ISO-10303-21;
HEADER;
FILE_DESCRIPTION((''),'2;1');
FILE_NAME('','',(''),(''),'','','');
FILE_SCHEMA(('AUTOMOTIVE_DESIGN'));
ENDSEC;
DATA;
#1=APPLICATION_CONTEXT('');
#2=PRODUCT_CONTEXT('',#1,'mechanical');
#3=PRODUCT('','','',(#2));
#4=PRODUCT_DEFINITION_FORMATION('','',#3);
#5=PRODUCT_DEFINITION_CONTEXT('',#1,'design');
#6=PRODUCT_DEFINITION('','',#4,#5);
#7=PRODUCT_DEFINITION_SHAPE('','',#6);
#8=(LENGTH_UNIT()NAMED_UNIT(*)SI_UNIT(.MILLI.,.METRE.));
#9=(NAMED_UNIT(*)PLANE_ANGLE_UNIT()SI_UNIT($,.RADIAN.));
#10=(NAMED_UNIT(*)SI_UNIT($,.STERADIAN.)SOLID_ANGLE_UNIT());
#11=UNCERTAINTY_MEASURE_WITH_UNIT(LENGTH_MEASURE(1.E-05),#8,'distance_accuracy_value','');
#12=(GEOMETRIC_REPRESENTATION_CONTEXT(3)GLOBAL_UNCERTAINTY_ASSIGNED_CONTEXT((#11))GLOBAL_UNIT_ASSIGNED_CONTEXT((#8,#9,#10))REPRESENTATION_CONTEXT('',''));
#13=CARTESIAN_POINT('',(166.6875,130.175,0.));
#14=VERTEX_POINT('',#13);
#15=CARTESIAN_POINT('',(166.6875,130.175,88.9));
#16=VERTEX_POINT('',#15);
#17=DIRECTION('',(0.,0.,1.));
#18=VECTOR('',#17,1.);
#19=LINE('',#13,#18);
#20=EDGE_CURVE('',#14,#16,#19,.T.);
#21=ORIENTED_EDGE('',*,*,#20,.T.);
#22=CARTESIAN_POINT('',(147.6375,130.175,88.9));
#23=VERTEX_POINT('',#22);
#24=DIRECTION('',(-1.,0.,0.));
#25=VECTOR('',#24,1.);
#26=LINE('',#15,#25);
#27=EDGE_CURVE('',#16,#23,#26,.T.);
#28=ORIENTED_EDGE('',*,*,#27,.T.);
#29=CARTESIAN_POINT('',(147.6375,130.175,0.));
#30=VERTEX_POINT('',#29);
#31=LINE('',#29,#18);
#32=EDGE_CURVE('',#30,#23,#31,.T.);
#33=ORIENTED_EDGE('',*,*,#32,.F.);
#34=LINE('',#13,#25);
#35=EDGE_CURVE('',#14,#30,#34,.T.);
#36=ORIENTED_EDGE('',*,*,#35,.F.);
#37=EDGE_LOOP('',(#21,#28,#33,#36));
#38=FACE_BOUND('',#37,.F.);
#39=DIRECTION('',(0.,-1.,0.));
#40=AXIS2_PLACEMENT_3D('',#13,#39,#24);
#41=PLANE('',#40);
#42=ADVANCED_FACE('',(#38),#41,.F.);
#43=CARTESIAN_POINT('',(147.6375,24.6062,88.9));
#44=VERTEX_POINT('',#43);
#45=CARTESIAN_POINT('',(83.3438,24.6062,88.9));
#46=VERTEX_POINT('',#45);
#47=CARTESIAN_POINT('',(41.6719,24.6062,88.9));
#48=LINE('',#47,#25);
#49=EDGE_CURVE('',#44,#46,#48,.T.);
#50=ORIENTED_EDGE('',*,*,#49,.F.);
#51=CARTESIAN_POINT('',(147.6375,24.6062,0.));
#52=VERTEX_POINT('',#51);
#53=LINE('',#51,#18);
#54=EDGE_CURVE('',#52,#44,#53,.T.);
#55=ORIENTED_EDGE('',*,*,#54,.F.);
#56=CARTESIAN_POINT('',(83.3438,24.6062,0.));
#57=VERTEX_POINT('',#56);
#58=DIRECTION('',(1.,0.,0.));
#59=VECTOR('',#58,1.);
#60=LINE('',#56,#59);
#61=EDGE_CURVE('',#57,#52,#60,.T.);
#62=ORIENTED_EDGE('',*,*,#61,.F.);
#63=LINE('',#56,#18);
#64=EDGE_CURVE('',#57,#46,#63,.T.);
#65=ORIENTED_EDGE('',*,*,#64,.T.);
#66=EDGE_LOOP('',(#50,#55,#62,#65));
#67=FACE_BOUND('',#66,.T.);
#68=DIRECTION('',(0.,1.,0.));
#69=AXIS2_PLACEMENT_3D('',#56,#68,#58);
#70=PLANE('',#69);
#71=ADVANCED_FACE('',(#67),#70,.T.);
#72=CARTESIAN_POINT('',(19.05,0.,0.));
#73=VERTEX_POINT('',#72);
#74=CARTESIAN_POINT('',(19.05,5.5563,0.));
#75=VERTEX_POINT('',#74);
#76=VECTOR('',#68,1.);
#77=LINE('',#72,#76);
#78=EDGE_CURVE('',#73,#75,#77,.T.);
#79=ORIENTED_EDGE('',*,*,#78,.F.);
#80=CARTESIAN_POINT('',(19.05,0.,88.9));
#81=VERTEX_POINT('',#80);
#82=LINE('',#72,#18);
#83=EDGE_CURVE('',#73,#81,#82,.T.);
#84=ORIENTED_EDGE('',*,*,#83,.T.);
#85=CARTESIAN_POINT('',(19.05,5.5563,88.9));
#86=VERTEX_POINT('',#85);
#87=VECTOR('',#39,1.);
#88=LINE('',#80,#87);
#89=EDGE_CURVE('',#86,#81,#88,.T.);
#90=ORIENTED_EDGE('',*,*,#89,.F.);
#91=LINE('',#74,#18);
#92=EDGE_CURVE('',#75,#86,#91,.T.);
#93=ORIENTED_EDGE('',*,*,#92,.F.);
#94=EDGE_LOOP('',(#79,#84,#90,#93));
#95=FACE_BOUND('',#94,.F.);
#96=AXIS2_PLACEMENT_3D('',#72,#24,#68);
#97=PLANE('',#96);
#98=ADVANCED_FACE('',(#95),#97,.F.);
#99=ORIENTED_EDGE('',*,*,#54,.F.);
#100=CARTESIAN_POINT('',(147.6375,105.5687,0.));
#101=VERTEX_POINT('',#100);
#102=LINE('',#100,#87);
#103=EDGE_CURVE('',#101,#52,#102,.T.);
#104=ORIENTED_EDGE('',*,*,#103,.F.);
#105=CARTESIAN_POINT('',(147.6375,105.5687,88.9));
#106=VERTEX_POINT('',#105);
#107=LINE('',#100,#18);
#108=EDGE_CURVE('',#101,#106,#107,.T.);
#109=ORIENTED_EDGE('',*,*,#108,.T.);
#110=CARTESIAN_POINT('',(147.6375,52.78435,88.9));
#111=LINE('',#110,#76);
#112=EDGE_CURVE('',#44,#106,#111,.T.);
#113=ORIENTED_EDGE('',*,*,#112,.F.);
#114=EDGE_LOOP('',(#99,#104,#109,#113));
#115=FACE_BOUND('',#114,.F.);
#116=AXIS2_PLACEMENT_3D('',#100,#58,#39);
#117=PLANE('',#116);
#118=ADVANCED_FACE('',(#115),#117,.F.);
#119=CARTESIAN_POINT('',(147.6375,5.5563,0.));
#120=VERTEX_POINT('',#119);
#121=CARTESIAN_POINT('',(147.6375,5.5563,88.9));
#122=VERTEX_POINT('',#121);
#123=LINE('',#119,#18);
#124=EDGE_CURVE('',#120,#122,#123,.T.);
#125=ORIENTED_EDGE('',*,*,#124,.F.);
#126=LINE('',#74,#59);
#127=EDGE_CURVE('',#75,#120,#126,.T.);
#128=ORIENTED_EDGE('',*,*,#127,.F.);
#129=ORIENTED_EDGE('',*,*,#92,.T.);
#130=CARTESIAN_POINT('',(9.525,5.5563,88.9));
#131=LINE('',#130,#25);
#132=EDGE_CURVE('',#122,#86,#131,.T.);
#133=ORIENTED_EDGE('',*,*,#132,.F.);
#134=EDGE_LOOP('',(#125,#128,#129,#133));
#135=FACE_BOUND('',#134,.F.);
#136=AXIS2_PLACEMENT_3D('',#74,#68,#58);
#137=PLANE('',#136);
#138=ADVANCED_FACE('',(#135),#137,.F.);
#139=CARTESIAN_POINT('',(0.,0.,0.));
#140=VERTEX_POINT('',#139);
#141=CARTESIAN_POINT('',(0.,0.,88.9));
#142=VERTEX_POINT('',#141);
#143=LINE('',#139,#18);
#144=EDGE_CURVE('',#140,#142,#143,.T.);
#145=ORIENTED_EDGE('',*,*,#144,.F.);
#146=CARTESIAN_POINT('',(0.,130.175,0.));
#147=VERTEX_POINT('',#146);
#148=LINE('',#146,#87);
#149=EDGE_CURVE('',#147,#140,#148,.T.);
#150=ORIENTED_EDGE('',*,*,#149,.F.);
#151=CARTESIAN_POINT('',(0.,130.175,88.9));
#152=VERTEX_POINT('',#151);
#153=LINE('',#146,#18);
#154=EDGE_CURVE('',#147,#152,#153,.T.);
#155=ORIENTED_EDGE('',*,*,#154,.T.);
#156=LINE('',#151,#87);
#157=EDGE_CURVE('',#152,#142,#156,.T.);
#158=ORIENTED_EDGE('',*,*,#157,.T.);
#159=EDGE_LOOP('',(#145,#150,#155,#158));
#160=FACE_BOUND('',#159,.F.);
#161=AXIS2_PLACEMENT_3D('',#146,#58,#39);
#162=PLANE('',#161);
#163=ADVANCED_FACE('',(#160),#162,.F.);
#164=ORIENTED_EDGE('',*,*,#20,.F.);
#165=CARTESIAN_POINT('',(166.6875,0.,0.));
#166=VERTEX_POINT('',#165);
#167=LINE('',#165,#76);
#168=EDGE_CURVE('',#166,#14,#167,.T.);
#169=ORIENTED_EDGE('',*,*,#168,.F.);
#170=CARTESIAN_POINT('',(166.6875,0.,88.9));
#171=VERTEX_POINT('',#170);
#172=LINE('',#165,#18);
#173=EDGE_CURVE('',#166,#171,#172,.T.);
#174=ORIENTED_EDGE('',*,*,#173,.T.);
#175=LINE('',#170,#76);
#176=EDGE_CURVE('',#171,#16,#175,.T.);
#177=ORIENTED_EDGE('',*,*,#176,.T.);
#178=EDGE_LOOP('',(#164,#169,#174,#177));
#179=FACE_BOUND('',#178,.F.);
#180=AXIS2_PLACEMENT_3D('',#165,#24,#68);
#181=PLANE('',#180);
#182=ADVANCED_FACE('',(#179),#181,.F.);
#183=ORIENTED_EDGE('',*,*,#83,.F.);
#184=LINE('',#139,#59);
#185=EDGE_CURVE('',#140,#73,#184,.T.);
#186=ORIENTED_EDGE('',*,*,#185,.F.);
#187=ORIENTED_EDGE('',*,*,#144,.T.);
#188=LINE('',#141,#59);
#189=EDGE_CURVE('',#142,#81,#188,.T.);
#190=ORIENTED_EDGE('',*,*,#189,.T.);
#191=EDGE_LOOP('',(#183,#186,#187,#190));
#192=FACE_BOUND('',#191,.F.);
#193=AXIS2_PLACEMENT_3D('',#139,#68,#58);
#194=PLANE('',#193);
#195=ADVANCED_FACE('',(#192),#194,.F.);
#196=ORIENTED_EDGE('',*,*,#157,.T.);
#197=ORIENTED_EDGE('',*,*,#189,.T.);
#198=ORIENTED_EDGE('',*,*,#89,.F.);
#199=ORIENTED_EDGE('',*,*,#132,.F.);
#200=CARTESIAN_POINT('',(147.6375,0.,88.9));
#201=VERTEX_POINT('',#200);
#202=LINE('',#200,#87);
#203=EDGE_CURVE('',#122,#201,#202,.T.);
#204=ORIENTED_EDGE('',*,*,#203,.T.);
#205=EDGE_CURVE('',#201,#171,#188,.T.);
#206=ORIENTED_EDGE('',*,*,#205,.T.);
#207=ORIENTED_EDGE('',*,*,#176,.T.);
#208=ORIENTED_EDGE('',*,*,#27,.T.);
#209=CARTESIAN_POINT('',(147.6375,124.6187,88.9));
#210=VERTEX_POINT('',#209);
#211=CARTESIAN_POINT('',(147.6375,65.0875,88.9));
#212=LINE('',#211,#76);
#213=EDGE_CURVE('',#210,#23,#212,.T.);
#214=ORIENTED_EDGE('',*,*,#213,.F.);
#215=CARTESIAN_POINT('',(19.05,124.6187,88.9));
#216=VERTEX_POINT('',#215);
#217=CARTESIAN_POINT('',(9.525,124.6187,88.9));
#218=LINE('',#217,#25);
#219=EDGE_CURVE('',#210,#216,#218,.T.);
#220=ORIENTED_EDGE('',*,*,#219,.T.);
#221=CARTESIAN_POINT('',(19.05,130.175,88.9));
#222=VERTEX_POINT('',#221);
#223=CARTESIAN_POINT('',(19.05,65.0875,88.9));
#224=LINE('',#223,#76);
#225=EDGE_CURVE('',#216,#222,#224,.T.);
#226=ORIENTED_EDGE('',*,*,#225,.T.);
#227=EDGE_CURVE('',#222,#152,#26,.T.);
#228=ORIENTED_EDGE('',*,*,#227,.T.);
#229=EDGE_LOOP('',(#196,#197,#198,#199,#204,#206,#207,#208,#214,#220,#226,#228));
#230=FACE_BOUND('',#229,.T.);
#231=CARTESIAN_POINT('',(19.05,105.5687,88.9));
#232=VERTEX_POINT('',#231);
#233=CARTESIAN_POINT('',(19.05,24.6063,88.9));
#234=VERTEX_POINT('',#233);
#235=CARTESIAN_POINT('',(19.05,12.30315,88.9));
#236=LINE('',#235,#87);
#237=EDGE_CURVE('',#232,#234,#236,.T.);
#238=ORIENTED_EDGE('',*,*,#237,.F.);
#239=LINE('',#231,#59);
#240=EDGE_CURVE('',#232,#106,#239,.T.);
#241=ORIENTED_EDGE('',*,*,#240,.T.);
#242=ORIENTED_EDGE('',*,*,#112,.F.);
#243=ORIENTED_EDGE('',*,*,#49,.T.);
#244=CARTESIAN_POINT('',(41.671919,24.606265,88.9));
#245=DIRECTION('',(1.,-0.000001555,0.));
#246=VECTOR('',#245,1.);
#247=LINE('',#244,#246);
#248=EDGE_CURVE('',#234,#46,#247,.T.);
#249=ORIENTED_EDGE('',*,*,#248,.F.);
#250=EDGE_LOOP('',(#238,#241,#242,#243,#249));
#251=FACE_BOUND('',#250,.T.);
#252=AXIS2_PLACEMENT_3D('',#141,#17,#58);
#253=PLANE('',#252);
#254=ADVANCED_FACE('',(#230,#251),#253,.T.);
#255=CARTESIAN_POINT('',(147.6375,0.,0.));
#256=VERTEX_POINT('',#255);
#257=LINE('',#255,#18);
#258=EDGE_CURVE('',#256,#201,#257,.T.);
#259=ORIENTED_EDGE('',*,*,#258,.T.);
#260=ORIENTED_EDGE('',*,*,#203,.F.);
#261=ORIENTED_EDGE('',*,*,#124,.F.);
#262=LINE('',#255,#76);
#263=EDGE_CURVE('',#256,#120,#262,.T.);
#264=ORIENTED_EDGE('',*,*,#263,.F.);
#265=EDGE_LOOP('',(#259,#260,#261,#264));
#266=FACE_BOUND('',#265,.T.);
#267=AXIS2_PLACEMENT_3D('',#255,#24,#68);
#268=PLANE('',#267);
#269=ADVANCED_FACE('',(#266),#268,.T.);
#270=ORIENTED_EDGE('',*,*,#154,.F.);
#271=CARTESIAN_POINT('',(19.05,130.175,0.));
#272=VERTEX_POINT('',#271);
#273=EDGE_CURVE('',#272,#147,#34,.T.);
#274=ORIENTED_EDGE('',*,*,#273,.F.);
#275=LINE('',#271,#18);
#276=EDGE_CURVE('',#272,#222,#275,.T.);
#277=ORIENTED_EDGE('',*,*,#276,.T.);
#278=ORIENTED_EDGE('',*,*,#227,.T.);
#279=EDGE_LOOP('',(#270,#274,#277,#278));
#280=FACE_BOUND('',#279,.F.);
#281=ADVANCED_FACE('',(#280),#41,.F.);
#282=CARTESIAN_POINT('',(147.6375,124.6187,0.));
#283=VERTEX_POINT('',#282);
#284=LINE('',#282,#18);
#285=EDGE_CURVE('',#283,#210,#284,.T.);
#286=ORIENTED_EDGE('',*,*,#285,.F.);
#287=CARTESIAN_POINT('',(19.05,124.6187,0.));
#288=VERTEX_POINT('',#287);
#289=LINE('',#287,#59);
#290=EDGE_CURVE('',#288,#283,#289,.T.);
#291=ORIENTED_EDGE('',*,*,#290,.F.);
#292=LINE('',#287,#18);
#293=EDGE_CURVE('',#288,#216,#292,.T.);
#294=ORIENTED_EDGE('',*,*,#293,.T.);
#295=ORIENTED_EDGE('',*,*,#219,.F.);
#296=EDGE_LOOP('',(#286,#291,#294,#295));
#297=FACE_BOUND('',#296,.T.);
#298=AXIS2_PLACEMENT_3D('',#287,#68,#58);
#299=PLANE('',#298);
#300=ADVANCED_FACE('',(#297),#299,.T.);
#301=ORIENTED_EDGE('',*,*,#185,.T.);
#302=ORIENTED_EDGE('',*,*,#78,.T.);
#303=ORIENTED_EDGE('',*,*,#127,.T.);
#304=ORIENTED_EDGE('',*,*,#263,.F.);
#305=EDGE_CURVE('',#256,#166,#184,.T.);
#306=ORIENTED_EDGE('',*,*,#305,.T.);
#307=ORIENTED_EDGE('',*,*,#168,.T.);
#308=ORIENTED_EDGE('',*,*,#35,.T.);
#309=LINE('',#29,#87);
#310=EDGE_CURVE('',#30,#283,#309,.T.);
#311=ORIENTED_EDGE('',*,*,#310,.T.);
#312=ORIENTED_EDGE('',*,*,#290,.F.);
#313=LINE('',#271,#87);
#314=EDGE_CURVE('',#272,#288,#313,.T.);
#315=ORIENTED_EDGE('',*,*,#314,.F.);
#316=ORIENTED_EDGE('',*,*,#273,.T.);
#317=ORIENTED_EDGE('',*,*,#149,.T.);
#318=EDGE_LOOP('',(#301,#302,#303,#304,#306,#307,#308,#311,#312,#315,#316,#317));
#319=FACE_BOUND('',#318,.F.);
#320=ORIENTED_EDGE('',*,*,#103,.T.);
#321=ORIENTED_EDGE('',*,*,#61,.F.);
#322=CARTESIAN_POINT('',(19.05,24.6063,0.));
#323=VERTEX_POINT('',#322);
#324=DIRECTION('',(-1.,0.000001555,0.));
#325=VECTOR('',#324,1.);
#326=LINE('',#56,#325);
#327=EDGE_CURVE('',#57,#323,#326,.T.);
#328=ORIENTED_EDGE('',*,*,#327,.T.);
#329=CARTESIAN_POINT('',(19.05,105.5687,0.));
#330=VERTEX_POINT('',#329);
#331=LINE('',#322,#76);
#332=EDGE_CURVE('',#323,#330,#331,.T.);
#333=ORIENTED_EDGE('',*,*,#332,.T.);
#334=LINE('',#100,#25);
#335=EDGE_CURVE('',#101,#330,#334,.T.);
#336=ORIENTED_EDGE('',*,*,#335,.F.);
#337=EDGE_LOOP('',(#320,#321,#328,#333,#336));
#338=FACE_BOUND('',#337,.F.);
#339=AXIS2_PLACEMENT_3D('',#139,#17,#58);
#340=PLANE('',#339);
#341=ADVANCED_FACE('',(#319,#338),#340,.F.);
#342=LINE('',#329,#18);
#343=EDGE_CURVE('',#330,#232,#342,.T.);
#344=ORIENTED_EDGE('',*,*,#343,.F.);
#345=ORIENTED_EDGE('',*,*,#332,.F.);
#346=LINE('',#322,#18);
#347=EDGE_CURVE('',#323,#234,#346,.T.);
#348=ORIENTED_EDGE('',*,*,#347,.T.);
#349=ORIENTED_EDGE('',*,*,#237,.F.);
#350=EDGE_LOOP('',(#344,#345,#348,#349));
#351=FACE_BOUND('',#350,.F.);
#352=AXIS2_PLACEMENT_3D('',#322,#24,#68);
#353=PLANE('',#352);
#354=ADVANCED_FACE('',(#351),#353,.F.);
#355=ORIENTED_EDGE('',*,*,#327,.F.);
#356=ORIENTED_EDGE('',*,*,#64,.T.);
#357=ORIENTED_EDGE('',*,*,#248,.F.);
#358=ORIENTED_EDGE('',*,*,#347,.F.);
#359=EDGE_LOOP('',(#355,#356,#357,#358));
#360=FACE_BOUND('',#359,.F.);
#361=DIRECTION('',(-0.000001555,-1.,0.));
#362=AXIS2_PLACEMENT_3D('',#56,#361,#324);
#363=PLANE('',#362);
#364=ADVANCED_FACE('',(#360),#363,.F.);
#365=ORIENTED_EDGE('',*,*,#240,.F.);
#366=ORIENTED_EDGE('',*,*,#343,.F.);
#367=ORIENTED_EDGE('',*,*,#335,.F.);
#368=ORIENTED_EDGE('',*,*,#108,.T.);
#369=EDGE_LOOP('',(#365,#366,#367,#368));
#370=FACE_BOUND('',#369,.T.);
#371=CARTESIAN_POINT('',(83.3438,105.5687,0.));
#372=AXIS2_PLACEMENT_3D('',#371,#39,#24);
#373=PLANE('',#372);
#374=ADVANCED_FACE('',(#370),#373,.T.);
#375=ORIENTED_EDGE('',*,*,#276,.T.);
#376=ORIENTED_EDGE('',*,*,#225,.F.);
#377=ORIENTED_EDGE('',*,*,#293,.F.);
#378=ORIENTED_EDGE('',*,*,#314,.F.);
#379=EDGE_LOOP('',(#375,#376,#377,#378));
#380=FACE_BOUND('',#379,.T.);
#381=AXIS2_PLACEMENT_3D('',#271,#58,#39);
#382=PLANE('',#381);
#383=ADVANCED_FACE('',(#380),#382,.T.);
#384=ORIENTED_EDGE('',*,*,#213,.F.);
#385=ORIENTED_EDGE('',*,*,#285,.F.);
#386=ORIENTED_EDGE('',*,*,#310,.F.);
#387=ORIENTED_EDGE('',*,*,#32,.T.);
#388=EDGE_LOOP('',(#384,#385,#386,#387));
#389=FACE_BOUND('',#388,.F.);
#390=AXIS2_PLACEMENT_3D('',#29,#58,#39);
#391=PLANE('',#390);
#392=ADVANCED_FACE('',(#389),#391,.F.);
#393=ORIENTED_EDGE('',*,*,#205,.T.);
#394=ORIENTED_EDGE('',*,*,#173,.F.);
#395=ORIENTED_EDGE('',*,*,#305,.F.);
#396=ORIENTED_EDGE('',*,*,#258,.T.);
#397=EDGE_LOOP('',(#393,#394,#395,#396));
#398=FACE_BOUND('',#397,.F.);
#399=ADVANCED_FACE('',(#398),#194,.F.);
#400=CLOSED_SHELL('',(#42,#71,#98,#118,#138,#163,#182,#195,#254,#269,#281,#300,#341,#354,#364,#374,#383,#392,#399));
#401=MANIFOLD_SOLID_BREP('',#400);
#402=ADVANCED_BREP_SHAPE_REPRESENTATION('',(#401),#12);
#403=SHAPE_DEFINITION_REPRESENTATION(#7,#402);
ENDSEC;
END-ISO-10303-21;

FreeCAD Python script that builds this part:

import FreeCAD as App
import Part
import Sketcher
Q = App.Units.Quantity

doc = App.newDocument("Part")
body = doc.addObject("PartDesign::Body", "Body")

# Sketch on XY plane
sketch1 = body.newObject("Sketcher::SketchObject", "Sketch")
sketch1.AttachmentSupport = (doc.getObject("XY_Plane"), [""])
sketch1.MapMode = "FlatFace"
sketch1.addGeometry([
    Part.LineSegment(App.Vector(0, 130, 0), App.Vector(0, 0, 0)),
    Part.LineSegment(App.Vector(0, 0, 0), App.Vector(167, 0, 0)),
    Part.LineSegment(App.Vector(167, 0, 0), App.Vector(167, 130, 0)),
    Part.LineSegment(App.Vector(167, 130, 0), App.Vector(0, 130, 0)),
], False)
sketch1.addConstraint([
    Sketcher.Constraint("Coincident", 0, 2, 1, 1),
    Sketcher.Constraint("Coincident", 1, 2, 2, 1),
    Sketcher.Constraint("Coincident", 2, 2, 3, 1),
    Sketcher.Constraint("Coincident", 3, 2, 0, 1),
    Sketcher.Constraint("Vertical", 0),
    Sketcher.Constraint("Horizontal", 1),
    Sketcher.Constraint("Vertical", 2),
    Sketcher.Constraint("Horizontal", 3),
    Sketcher.Constraint("Coincident", 0, 2, -1, 1),
    Sketcher.Constraint("DistanceX", 1, 1, 1, 2, Q("6.5625 in")),
    Sketcher.Constraint("DistanceY", 0, 2, 0, 1, Q("5.125 in")),
])
pad1 = body.newObject("PartDesign::Pad", "Pad")
pad1.Profile = sketch1
pad1.Length = Q("3.5 in")

# Sketch on XY plane
sketch2 = body.newObject("Sketcher::SketchObject", "Sketch001")
sketch2.AttachmentSupport = (doc.getObject("XY_Plane"), [""])
sketch2.MapMode = "FlatFace"
sketch2.addGeometry([
    Part.LineSegment(App.Vector(148, 0, 0), App.Vector(19, 0, 0)),  # 0
    Part.LineSegment(App.Vector(19, 0, 0), App.Vector(19, 6, 0)),  # 1
    Part.LineSegment(App.Vector(19, 6, 0), App.Vector(148, 6, 0)),  # 2
    Part.LineSegment(App.Vector(148, 6, 0), App.Vector(148, 0, 0)),  # 3
    Part.LineSegment(App.Vector(19, 130, 0), App.Vector(148, 130, 0)),  # 4
    Part.LineSegment(App.Vector(148, 130, 0), App.Vector(148, 125, 0)),  # 5
    Part.LineSegment(App.Vector(148, 125, 0), App.Vector(19, 125, 0)),  # 6
    Part.LineSegment(App.Vector(19, 125, 0), App.Vector(19, 130, 0)),  # 7
], False)
sketch2.addConstraint([
    Sketcher.Constraint("Coincident", 0, 2, 1, 1),
    Sketcher.Constraint("Coincident", 1, 2, 2, 1),
    Sketcher.Constraint("Coincident", 2, 2, 3, 1),
    Sketcher.Constraint("Coincident", 3, 2, 0, 1),
    Sketcher.Constraint("Coincident", 4, 2, 5, 1),
    Sketcher.Constraint("Coincident", 5, 2, 6, 1),
    Sketcher.Constraint("Coincident", 6, 2, 7, 1),
    Sketcher.Constraint("Coincident", 7, 2, 4, 1),
    Sketcher.Constraint("Horizontal", 0),
    Sketcher.Constraint("Vertical", 1),
    Sketcher.Constraint("Horizontal", 2),
    Sketcher.Constraint("Vertical", 3),
    Sketcher.Constraint("Horizontal", 4),
    Sketcher.Constraint("Vertical", 5),
    Sketcher.Constraint("Horizontal", 6),
    Sketcher.Constraint("Vertical", 7),
    Sketcher.Constraint("PointOnObject", 0, 2, -1),
    Sketcher.Constraint("Vertical", 3, 2, 4, 2),
    Sketcher.Constraint("Vertical", 1, 2, 6, 2),
    Sketcher.Constraint("Equal", 3, 5),
    Sketcher.Constraint("DistanceX", 0, 2, 0, 1, Q("5.0625 in")),
    Sketcher.Constraint("DistanceY", 1, 1, 1, 2, Q("0.218752 in")),
    Sketcher.Constraint("DistanceX", -1, 1, 0, 2, Q("0.75 in")),
    Sketcher.Constraint("DistanceY", -1, 1, 4, 2, Q("5.125 in")),
])
pocket1 = body.newObject("PartDesign::Pocket", "Pocket")
pocket1.Profile = sketch2
pocket1.Type = "ThroughAll"
pocket1.Reversed = True

# Sketch on XY plane
sketch3 = body.newObject("Sketcher::SketchObject", "Sketch002")
sketch3.AttachmentSupport = (doc.getObject("XY_Plane"), [""])
sketch3.MapMode = "FlatFace"
sketch3.addGeometry([
    Part.LineSegment(App.Vector(19, 106, 0), App.Vector(148, 106, 0)),  # 0
    Part.LineSegment(App.Vector(148, 106, 0), App.Vector(148, 25, 0)),  # 1
    Part.LineSegment(App.Vector(148, 25, 0), App.Vector(83, 25, 0)),  # 2
    Part.LineSegment(App.Vector(83, 25, 0), App.Vector(19, 25, 0)),  # 3
    Part.LineSegment(App.Vector(19, 25, 0), App.Vector(19, 106, 0)),  # 4
], False)
sketch3.addConstraint([
    Sketcher.Constraint("Coincident", 0, 2, 1, 1),
    Sketcher.Constraint("Coincident", 1, 2, 2, 1),
    Sketcher.Constraint("Coincident", 2, 2, 3, 1),
    Sketcher.Constraint("Coincident", 3, 2, 4, 1),
    Sketcher.Constraint("Coincident", 4, 2, 0, 1),
    Sketcher.Constraint("Horizontal", 0),
    Sketcher.Constraint("Vertical", 1),
    Sketcher.Constraint("Horizontal", 2),
    Sketcher.Constraint("Horizontal", 3),
    Sketcher.Constraint("Vertical", 4),
    Sketcher.Constraint("Equal", 2, 3),
    Sketcher.Constraint("DistanceX", -1, 1, 3, 2, Q("0.75 in")),
    Sketcher.Constraint("DistanceX", 0, 1, 0, 2, Q("5.0625 in")),
    Sketcher.Constraint("DistanceY", 1, 2, 1, 1, Q("3.1875 in")),
    Sketcher.Constraint("DistanceY", -1, 1, 0, 2, Q("4.156248 in")),
])
pocket2 = body.newObject("PartDesign::Pocket", "Pocket001")
pocket2.Profile = sketch3
pocket2.Type = "ThroughAll"
pocket2.Reversed = True

doc.recompute()
